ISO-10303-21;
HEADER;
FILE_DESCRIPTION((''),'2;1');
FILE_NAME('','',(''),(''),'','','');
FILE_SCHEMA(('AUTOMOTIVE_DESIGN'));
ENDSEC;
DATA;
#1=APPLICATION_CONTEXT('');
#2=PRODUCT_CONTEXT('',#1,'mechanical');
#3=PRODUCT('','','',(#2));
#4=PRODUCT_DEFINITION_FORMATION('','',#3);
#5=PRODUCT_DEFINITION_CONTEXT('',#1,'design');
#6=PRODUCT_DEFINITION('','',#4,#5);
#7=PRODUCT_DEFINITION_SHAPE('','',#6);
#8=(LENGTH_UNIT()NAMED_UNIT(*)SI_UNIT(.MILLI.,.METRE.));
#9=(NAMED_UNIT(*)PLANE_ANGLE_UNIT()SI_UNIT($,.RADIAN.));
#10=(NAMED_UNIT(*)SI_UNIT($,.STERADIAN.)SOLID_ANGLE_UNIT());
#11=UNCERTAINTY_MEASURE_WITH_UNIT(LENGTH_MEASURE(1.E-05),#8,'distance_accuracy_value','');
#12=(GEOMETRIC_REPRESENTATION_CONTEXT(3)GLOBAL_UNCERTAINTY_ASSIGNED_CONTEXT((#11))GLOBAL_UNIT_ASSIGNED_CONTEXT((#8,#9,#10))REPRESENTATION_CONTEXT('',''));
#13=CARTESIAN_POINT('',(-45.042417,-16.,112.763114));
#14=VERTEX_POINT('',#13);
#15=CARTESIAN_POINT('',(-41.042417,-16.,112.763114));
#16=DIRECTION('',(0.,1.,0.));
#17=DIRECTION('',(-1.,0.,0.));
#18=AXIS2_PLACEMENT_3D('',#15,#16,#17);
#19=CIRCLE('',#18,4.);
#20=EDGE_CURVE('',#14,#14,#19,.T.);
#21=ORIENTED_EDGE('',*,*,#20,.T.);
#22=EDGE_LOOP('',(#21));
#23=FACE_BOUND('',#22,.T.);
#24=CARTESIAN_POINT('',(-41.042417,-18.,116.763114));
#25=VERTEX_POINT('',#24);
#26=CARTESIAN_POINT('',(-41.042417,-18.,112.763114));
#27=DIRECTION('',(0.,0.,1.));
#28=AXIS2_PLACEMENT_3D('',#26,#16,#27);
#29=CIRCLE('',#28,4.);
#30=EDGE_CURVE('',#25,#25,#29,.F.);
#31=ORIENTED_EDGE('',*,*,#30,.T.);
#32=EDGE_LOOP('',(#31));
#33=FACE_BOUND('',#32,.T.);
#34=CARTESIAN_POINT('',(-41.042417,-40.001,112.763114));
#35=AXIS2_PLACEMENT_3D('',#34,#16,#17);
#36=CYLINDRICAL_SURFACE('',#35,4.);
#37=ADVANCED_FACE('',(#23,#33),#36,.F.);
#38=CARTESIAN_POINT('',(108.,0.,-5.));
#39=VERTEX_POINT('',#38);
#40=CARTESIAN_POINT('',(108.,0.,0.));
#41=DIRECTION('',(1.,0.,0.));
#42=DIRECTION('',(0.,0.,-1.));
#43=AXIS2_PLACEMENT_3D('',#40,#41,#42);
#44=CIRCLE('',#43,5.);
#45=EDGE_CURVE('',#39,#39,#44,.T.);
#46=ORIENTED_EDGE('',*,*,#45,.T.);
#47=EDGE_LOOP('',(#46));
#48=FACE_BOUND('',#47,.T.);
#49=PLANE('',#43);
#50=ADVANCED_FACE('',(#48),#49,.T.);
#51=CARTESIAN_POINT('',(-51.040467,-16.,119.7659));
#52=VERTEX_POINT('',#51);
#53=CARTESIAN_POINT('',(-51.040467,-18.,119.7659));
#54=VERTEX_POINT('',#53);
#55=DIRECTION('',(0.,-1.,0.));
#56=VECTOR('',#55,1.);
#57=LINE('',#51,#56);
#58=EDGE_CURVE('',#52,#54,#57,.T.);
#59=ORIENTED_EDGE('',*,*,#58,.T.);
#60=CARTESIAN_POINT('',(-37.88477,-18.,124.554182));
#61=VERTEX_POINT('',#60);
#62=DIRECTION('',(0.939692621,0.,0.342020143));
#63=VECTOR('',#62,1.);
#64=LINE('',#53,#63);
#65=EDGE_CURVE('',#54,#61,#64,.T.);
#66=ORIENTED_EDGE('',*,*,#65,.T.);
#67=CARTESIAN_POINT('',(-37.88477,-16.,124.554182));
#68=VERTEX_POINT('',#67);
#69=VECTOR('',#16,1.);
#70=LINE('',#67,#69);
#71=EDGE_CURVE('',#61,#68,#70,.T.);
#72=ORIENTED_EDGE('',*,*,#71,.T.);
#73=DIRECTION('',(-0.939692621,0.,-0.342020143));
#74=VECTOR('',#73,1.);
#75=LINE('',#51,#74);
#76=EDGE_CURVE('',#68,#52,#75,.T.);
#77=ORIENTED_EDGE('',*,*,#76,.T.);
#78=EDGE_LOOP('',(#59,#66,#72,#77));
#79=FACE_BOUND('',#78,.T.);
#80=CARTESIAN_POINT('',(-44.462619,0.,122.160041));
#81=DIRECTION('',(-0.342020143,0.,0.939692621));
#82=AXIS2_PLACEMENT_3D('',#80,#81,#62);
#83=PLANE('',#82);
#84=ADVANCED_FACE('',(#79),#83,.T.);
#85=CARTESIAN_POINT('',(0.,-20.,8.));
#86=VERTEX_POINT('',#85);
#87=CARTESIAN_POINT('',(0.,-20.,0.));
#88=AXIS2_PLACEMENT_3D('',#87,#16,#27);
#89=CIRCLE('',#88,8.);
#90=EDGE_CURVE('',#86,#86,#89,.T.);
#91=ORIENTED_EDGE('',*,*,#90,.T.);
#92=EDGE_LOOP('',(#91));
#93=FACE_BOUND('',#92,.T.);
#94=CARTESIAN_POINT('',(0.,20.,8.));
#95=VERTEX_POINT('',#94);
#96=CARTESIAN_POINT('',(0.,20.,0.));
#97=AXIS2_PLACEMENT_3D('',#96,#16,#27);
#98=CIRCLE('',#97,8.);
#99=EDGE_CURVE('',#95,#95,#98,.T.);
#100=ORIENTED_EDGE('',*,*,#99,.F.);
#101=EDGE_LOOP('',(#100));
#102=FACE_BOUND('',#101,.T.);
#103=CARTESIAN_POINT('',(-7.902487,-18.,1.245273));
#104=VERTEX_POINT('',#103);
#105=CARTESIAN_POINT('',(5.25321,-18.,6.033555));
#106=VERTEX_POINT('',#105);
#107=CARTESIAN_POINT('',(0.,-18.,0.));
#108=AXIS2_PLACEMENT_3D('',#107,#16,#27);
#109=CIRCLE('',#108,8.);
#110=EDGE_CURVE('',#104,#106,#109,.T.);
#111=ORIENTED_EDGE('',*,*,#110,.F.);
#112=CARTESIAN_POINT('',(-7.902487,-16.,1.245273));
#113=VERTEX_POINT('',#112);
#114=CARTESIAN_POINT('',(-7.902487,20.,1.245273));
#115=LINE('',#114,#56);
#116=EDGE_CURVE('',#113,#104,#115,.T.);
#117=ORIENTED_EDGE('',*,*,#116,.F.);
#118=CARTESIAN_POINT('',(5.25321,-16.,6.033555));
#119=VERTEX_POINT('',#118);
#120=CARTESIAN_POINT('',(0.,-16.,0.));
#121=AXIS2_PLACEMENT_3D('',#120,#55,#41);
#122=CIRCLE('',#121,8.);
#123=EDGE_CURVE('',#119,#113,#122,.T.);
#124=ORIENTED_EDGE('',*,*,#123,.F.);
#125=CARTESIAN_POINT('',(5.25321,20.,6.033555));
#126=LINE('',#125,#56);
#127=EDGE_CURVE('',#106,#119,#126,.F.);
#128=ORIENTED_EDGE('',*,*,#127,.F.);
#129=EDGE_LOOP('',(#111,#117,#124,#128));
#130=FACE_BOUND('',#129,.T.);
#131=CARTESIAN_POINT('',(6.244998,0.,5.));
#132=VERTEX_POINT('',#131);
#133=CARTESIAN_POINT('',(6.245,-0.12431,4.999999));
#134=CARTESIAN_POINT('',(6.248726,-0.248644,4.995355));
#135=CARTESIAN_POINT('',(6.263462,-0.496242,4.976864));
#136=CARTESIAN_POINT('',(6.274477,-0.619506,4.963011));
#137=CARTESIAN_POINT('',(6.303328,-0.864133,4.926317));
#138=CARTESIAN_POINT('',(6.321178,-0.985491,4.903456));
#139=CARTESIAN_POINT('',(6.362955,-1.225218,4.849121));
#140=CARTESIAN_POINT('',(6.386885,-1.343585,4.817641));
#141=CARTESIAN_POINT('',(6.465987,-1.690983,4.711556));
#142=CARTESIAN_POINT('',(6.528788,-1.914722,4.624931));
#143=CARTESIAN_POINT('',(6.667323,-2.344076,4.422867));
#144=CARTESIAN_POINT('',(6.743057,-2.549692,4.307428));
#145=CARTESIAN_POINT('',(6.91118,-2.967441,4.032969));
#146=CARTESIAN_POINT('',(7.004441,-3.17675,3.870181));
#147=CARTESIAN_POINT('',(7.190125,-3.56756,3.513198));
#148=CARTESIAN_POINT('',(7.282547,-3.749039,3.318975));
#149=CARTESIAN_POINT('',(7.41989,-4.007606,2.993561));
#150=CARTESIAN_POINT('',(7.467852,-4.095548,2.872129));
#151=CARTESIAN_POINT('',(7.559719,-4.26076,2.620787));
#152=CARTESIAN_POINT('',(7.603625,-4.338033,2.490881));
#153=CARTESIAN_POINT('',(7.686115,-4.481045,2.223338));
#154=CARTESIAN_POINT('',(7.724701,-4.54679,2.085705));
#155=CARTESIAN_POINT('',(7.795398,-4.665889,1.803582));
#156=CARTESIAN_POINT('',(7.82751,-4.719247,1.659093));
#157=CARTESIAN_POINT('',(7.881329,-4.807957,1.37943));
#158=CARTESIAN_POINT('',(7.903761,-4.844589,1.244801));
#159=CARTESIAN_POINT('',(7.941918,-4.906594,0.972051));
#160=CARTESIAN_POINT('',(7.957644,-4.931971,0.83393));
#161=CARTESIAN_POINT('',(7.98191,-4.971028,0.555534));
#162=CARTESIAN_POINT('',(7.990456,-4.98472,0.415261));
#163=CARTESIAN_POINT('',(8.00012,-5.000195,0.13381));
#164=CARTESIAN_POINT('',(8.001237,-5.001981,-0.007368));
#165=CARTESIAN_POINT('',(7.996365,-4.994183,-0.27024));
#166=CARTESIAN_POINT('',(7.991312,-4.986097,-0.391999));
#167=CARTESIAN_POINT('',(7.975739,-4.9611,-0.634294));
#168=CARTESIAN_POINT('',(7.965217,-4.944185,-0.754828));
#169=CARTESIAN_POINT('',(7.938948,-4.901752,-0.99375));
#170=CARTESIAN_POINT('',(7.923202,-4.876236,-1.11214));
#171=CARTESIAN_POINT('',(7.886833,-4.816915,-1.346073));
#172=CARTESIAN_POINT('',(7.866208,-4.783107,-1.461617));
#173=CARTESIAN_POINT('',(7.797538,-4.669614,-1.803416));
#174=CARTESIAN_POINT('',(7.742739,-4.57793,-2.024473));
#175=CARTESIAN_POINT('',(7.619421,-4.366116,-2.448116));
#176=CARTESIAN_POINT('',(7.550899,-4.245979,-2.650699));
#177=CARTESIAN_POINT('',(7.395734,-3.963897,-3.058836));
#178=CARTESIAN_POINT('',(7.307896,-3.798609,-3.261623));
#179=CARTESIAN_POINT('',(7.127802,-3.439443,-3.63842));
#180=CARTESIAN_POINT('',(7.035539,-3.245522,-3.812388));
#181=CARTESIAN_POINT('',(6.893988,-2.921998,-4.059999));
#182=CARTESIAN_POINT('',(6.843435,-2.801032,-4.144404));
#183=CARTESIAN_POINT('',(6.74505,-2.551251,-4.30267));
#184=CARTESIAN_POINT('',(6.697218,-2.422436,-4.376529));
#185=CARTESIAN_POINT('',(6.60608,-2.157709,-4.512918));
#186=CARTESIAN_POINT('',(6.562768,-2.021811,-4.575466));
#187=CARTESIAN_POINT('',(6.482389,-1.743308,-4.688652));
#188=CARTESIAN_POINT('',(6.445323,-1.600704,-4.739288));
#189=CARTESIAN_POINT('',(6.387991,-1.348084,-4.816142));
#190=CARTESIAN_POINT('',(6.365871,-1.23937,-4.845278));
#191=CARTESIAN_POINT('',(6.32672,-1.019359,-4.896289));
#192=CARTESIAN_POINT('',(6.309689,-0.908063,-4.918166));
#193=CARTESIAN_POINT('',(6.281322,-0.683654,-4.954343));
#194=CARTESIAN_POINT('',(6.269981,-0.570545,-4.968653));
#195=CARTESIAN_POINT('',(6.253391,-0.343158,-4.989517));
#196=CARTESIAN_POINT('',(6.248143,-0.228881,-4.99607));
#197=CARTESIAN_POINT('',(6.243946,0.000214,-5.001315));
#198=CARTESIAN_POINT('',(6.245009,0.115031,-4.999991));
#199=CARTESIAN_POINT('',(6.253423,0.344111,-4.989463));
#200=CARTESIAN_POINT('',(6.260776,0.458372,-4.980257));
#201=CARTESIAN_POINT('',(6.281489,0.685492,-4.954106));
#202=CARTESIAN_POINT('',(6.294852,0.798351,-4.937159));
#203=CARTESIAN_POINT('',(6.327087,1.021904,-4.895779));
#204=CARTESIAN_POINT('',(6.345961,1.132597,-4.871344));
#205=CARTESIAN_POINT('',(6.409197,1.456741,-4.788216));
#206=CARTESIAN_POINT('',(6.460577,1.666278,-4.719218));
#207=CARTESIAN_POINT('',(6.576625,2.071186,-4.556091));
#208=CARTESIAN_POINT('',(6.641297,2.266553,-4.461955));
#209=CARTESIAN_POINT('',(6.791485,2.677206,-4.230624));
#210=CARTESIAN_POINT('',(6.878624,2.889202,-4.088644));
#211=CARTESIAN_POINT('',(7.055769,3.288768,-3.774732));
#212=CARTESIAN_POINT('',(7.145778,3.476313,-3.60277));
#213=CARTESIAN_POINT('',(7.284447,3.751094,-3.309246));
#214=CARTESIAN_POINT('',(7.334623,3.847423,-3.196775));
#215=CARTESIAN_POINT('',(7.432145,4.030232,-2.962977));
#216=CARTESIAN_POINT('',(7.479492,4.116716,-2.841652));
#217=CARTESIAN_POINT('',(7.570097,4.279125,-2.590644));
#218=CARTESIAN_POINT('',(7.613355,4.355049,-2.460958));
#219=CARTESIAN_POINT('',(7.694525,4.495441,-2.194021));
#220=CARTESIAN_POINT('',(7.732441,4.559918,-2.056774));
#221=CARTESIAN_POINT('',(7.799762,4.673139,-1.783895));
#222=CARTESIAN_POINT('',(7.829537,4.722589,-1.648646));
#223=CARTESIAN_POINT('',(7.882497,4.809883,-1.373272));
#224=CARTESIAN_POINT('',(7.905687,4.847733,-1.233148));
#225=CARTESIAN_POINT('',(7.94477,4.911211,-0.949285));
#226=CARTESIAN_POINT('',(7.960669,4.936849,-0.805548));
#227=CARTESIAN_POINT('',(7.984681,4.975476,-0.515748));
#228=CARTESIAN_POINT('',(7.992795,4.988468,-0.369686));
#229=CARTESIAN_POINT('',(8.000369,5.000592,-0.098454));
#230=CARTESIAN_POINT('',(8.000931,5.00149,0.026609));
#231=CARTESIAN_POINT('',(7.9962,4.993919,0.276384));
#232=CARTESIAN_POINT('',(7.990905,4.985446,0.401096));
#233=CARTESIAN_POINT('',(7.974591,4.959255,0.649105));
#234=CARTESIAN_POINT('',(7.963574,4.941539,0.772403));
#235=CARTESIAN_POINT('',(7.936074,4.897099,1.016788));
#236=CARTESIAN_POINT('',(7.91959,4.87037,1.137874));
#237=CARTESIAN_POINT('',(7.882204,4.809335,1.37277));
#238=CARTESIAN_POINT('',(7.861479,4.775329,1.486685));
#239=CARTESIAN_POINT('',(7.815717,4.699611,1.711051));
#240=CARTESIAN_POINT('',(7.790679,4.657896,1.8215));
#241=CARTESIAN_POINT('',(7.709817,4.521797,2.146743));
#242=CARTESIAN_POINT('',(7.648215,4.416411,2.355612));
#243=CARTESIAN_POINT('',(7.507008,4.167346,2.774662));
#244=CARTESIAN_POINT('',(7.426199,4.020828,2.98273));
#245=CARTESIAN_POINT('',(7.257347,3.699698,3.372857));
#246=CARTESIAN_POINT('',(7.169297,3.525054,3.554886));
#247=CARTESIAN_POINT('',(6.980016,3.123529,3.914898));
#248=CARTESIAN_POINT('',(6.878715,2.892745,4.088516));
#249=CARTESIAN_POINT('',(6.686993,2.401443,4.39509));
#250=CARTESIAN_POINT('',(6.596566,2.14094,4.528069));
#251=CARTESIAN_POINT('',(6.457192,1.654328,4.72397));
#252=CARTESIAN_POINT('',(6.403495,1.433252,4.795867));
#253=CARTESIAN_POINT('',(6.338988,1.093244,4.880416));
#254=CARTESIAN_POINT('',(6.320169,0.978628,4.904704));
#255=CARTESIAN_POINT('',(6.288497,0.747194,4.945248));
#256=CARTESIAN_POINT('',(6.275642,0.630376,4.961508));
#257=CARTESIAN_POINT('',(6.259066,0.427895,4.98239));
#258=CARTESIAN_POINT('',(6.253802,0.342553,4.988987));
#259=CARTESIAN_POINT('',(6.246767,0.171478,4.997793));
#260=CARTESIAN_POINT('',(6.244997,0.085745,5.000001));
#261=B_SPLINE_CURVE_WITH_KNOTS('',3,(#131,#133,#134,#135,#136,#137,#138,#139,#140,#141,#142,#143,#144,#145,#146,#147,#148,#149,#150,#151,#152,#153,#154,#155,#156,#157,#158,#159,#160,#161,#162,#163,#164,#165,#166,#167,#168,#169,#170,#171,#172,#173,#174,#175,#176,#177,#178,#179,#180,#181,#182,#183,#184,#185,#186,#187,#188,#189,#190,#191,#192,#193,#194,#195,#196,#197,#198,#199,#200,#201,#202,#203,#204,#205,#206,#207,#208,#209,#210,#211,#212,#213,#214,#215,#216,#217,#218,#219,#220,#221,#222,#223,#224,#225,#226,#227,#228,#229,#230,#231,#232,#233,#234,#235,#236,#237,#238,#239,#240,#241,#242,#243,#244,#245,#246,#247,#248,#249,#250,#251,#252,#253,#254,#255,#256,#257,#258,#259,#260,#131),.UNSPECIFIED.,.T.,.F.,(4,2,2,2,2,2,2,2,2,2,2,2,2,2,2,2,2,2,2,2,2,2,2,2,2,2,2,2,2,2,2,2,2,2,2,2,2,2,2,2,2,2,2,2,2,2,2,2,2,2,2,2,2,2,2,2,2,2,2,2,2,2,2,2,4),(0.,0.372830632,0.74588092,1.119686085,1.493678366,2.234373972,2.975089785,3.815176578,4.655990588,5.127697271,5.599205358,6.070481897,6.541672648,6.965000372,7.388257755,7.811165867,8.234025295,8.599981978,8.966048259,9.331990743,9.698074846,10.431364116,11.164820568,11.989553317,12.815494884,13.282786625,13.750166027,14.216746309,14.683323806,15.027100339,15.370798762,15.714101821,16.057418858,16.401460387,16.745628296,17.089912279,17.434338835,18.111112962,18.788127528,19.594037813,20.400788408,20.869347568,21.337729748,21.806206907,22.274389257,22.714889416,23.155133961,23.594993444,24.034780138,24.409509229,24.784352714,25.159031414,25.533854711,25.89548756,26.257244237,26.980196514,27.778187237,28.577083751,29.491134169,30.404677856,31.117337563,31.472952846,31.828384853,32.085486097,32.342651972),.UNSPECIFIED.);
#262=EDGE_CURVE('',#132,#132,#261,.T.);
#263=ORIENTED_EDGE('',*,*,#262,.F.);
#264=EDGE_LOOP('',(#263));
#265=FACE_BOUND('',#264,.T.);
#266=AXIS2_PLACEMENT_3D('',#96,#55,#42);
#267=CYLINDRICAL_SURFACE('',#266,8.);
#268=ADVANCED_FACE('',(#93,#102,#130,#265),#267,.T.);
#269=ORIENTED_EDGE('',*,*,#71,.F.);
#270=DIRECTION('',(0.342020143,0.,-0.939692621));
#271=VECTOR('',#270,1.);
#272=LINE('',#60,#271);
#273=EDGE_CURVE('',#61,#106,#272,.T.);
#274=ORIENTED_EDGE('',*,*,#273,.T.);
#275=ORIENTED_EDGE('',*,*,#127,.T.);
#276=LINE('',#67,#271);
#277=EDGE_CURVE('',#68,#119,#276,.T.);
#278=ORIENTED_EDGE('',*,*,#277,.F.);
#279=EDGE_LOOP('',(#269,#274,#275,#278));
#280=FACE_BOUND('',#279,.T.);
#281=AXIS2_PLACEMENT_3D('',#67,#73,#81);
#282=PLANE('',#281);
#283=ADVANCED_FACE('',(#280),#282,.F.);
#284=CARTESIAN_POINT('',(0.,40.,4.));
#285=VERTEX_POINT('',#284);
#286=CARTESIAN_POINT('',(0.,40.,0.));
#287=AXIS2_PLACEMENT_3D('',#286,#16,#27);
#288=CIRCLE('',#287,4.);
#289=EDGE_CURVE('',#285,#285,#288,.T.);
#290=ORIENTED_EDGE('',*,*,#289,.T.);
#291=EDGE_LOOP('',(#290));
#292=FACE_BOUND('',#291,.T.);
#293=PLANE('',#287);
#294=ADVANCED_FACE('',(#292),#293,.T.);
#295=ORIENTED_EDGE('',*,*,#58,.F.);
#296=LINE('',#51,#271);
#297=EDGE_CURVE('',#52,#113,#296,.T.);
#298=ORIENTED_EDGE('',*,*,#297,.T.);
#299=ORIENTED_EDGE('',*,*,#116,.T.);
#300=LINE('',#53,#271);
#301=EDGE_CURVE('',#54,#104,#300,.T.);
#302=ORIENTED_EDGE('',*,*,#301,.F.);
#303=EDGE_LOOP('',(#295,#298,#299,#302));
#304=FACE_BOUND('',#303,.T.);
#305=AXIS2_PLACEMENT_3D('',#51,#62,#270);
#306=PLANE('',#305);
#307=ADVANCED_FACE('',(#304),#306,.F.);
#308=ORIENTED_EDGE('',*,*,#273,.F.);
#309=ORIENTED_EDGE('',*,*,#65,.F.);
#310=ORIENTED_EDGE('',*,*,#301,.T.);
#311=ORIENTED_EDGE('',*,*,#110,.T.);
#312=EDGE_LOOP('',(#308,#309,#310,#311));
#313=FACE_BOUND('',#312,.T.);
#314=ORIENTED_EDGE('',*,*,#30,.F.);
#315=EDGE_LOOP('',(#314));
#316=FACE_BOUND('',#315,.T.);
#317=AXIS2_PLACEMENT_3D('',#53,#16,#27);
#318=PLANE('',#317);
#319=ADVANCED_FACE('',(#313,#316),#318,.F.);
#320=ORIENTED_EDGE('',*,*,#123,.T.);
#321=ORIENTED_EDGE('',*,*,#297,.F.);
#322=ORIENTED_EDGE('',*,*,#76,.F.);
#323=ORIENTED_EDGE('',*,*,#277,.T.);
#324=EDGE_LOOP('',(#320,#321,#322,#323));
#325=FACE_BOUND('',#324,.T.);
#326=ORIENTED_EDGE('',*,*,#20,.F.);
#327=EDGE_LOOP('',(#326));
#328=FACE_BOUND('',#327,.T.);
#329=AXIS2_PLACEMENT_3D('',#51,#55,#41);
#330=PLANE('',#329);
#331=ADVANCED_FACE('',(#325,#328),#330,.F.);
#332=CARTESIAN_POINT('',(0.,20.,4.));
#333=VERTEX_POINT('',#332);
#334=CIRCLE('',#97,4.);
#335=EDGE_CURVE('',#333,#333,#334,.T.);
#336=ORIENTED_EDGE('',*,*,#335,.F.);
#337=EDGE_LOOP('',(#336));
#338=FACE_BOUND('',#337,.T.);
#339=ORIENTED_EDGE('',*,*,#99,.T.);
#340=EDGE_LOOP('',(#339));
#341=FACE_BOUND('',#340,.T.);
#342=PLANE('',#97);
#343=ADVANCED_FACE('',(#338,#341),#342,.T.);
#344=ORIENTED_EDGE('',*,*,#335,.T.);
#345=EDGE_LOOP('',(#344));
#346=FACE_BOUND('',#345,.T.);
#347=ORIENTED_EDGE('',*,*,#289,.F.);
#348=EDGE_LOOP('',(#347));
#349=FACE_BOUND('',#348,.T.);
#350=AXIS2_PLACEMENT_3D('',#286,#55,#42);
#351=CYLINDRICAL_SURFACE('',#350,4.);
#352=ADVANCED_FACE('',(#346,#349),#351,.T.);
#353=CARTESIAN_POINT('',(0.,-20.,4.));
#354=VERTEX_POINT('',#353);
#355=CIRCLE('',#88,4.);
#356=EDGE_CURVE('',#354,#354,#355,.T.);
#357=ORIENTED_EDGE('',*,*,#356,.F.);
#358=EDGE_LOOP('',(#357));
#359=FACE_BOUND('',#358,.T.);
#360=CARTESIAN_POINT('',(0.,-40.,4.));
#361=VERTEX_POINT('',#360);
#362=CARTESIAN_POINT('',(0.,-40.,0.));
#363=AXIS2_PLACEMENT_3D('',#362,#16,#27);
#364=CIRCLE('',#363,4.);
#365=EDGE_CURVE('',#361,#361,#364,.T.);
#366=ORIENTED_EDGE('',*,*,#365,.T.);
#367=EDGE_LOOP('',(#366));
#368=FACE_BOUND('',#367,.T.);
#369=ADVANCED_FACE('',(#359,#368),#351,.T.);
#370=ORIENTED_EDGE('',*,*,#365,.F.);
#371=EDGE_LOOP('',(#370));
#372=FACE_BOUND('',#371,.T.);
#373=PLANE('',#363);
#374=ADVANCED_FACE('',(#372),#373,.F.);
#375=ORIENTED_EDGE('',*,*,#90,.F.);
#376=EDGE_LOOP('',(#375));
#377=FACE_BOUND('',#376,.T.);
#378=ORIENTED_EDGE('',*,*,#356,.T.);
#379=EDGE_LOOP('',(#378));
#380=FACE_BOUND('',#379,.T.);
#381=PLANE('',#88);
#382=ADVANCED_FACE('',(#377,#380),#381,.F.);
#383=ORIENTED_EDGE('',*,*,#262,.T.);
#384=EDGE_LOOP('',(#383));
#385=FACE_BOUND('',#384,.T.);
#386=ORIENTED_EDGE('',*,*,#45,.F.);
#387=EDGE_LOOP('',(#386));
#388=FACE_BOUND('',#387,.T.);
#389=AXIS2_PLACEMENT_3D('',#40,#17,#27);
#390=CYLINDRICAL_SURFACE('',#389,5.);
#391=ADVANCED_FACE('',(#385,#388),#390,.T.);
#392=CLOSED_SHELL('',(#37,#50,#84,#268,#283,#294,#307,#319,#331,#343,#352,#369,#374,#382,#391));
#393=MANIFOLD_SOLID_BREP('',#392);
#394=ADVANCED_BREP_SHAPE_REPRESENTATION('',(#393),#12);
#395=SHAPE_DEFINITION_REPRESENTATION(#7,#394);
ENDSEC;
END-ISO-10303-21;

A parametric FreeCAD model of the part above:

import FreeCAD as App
import Part
import Sketcher
from FreeCAD import Vector

doc = App.newDocument("Part")
body = doc.addObject("PartDesign::Body", "Body")

# Sketch on XZ plane
sketch1 = doc.addObject("Sketcher::SketchObject", "Sketch")
body.addObject(sketch1)
sketch1.AttachmentSupport = (doc.XZ_Plane, [""])
sketch1.MapMode = "FlatFace"
sketch1.addGeometry(Part.Circle(Vector(0, 0, 0), Vector(0, 0, 1), 4), False)
sketch1.addConstraint(Sketcher.Constraint("Coincident", 0, 3, -1, 1))
sketch1.addConstraint(Sketcher.Constraint("Diameter", 0, 8.0))
pad1 = doc.addObject("PartDesign::Pad", "Pad")
body.addObject(pad1)
pad1.Profile = sketch1
pad1.Length = 80
pad1.Midplane = True

# Sketch on XZ plane
sketch2 = doc.addObject("Sketcher::SketchObject", "Sketch001")
body.addObject(sketch2)
sketch2.AttachmentSupport = (doc.XZ_Plane, [""])
sketch2.MapMode = "FlatFace"
sketch2.addGeometry(Part.Circle(Vector(0, 0, 0), Vector(0, 0, 1), 8), False)
sketch2.addConstraint(Sketcher.Constraint("Coincident", 0, 3, -1, 1))
sketch2.addConstraint(Sketcher.Constraint("Diameter", 0, 16.0))
pad2 = doc.addObject("PartDesign::Pad", "Pad001")
body.addObject(pad2)
pad2.Profile = sketch2
pad2.Length = 40
pad2.Midplane = True

# Sketch on YZ plane
sketch3 = doc.addObject("Sketcher::SketchObject", "Sketch002")
body.addObject(sketch3)
sketch3.AttachmentSupport = (doc.YZ_Plane, [""])
sketch3.MapMode = "FlatFace"
sketch3.addGeometry(Part.Circle(Vector(0, 0, 0), Vector(0, 0, 1), 5), False)
sketch3.addConstraint(Sketcher.Constraint("Coincident", 0, 3, -1, 1))
sketch3.addConstraint(Sketcher.Constraint("Diameter", 0, 10.0))
pad3 = doc.addObject("PartDesign::Pad", "Pad002")
body.addObject(pad3)
pad3.Profile = sketch3
pad3.Length = 108

# Sketch on an angled plane
sketch4 = doc.addObject("Sketcher::SketchObject", "Sketch003")
body.addObject(sketch4)
sketch4.Placement = App.Placement(Vector(0, 0, 0), App.Rotation(Vector(0.939692621, 0, 0.342020143), Vector(0, 1, 0), Vector(-0.342020143, 0, 0.939692621), "ZXY"))
sketch4.addGeometry(Part.LineSegment(Vector(-7, -16, 0), Vector(-7, -18, 0)), False)
sketch4.addGeometry(Part.LineSegment(Vector(-7, -18, 0), Vector(7, -18, 0)), False)
sketch4.addGeometry(Part.LineSegment(Vector(7, -18, 0), Vector(7, -16, 0)), False)
sketch4.addGeometry(Part.LineSegment(Vector(7, -16, 0), Vector(-7, -16, 0)), False)
sketch4.addConstraint(Sketcher.Constraint("Coincident", 0, 2, 1, 1))
sketch4.addConstraint(Sketcher.Constraint("Coincident", 1, 2, 2, 1))
sketch4.addConstraint(Sketcher.Constraint("Coincident", 2, 2, 3, 1))
sketch4.addConstraint(Sketcher.Constraint("Coincident", 3, 2, 0, 1))
sketch4.addConstraint(Sketcher.Constraint("Vertical", 0))
sketch4.addConstraint(Sketcher.Constraint("Horizontal", 1))
sketch4.addConstraint(Sketcher.Constraint("Vertical", 2))
sketch4.addConstraint(Sketcher.Constraint("Horizontal", 3))
sketch4.addConstraint(Sketcher.Constraint("DistanceX", 1, 1, 1, 2, 14.0))
sketch4.addConstraint(Sketcher.Constraint("DistanceY", 0, 2, 0, 1, 2.0))
sketch4.addConstraint(Sketcher.Constraint("DistanceX", 0, 2, -1, 1, 7.0))
sketch4.addConstraint(Sketcher.Constraint("DistanceY", 0, 2, -1, 1, 18.0))
pad4 = doc.addObject("PartDesign::Pad", "Pad003")
body.addObject(pad4)
pad4.Profile = sketch4
pad4.Length = 130

# Sketch on XZ plane
sketch5 = doc.addObject("Sketcher::SketchObject", "Sketch004")
body.addObject(sketch5)
sketch5.AttachmentSupport = (doc.XZ_Plane, [""])
sketch5.MapMode = "FlatFace"
sketch5.AttachmentOffset = App.Placement(Vector(0, 0, 16), App.Rotation())
sketch5.addGeometry(Part.Circle(Vector(-41.042417, 112.763114, 0), Vector(0, 0, 1), 4), False)
sketch5.addConstraint(Sketcher.Constraint("Diameter", 0, 8.0))
sketch5.addConstraint(Sketcher.Constraint("DistanceX", 0, 3, -1, 1, 41.042417))
sketch5.addConstraint(Sketcher.Constraint("DistanceY", -1, 1, 0, 3, 112.763114))
pocket1 = doc.addObject("PartDesign::Pocket", "Pocket")
body.addObject(pocket1)
pocket1.Profile = sketch5
pocket1.Type = "UpToFirst"
pocket1.Reversed = True

doc.recompute()
